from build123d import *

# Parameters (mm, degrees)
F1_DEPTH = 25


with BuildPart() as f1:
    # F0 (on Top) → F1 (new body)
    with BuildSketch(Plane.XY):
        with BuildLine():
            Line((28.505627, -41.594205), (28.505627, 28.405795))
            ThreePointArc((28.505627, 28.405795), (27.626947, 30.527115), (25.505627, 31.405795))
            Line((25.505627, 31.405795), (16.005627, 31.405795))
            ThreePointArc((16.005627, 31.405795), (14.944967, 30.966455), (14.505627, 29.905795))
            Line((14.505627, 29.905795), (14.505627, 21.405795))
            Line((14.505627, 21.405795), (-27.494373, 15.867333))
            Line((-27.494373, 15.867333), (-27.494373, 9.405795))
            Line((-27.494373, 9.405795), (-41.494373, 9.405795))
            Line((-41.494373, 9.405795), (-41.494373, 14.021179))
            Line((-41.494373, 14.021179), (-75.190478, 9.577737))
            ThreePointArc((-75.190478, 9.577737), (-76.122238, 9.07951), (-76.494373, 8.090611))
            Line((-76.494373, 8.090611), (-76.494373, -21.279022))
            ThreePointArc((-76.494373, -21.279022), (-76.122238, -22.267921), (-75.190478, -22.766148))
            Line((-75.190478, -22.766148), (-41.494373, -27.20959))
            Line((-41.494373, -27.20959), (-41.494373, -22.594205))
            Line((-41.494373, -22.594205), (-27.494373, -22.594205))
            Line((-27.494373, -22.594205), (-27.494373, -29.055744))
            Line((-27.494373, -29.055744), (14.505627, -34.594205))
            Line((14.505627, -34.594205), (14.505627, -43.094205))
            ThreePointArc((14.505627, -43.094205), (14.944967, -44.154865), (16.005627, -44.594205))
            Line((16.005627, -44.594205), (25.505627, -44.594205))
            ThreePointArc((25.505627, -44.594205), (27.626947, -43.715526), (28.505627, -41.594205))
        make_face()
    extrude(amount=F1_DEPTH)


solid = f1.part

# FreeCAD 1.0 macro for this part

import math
import FreeCAD as App
import Part
import Sketcher
Q = App.Units.Quantity

doc = App.newDocument("Part")
body = doc.addObject("PartDesign::Body", "Body")

sketch1 = doc.addObject("Sketcher::SketchObject", "Sketch")
body.addObject(sketch1)
sketch1.AttachmentSupport = (doc.XY_Plane, [""])
sketch1.MapMode = "FlatFace"
sketch1.addGeometry(Part.LineSegment(App.Vector(28.5, -41.6, 0), App.Vector(28.5, 28.4, 0)), False)
sketch1.addGeometry(Part.ArcOfCircle(Part.Circle(App.Vector(25.5, 28.4, 0), App.Vector(0, 0, 1), 3), math.radians(0), math.radians(90)), False)
sketch1.addGeometry(Part.LineSegment(App.Vector(25.5, 31.4, 0), App.Vector(16, 31.4, 0)), False)
sketch1.addGeometry(Part.ArcOfCircle(Part.Circle(App.Vector(16, 29.9, 0), App.Vector(0, 0, 1), 1.5), math.radians(90), math.radians(180)), False)
sketch1.addGeometry(Part.LineSegment(App.Vector(14.5, 29.9, 0), App.Vector(14.5, 21.4, 0)), False)
sketch1.addGeometry(Part.LineSegment(App.Vector(14.5, 21.4, 0), App.Vector(-27.5, 15.9, 0)), False)
sketch1.addGeometry(Part.LineSegment(App.Vector(-27.5, 15.9, 0), App.Vector(-27.5, 9.4, 0)), False)
sketch1.addGeometry(Part.LineSegment(App.Vector(-27.5, 9.4, 0), App.Vector(-41.5, 9.4, 0)), False)
sketch1.addGeometry(Part.LineSegment(App.Vector(-41.5, 9.4, 0), App.Vector(-41.5, 14, 0)), False)
sketch1.addGeometry(Part.LineSegment(App.Vector(-41.5, 14, 0), App.Vector(-75.2, 9.6, 0)), False)
sketch1.addGeometry(Part.ArcOfCircle(Part.Circle(App.Vector(-75, 8.1, 0), App.Vector(0, 0, 1), 1.5), math.radians(98), math.radians(180)), False)
sketch1.addGeometry(Part.LineSegment(App.Vector(-76.5, 8.1, 0), App.Vector(-76.5, -21.3, 0)), False)
sketch1.addGeometry(Part.ArcOfCircle(Part.Circle(App.Vector(-75, -21.3, 0), App.Vector(0, 0, 1), 1.5), math.radians(180), math.radians(262)), False)
sketch1.addGeometry(Part.LineSegment(App.Vector(-75.2, -22.8, 0), App.Vector(-41.5, -27.2, 0)), False)
sketch1.addGeometry(Part.LineSegment(App.Vector(-41.5, -27.2, 0), App.Vector(-41.5, -22.6, 0)), False)
sketch1.addGeometry(Part.LineSegment(App.Vector(-41.5, -22.6, 0), App.Vector(-27.5, -22.6, 0)), False)
sketch1.addGeometry(Part.LineSegment(App.Vector(-27.5, -22.6, 0), App.Vector(-27.5, -29.1, 0)), False)
sketch1.addGeometry(Part.LineSegment(App.Vector(-27.5, -29.1, 0), App.Vector(14.5, -34.6, 0)), False)
sketch1.addGeometry(Part.LineSegment(App.Vector(14.5, -34.6, 0), App.Vector(14.5, -43.1, 0)), False)
sketch1.addGeometry(Part.ArcOfCircle(Part.Circle(App.Vector(16, -43.1, 0), App.Vector(0, 0, 1), 1.5), math.radians(-180), math.radians(-90)), False)
sketch1.addGeometry(Part.LineSegment(App.Vector(16, -44.6, 0), App.Vector(25.5, -44.6, 0)), False)
sketch1.addGeometry(Part.ArcOfCircle(Part.Circle(App.Vector(25.5, -41.6, 0), App.Vector(0, 0, 1), 3), math.radians(-90), math.radians(0)), False)
sketch1.addConstraint(Sketcher.Constraint("Tangent", 0, 2, 1, 1))
sketch1.addConstraint(Sketcher.Constraint("Tangent", 1, 2, 2, 1))
sketch1.addConstraint(Sketcher.Constraint("Tangent", 2, 2, 3, 1))
sketch1.addConstraint(Sketcher.Constraint("Tangent", 3, 2, 4, 1))
sketch1.addConstraint(Sketcher.Constraint("Coincident", 4, 2, 5, 1))
sketch1.addConstraint(Sketcher.Constraint("Coincident", 5, 2, 6, 1))
sketch1.addConstraint(Sketcher.Constraint("Coincident", 6, 2, 7, 1))
sketch1.addConstraint(Sketcher.Constraint("Coincident", 7, 2, 8, 1))
sketch1.addConstraint(Sketcher.Constraint("Coincident", 8, 2, 9, 1))
sketch1.addConstraint(Sketcher.Constraint("Tangent", 9, 2, 10, 1))
sketch1.addConstraint(Sketcher.Constraint("Tangent", 10, 2, 11, 1))
sketch1.addConstraint(Sketcher.Constraint("Tangent", 11, 2, 12, 1))
sketch1.addConstraint(Sketcher.Constraint("Tangent", 12, 2, 13, 1))
sketch1.addConstraint(Sketcher.Constraint("Coincident", 13, 2, 14, 1))
sketch1.addConstraint(Sketcher.Constraint("Coincident", 14, 2, 15, 1))
sketch1.addConstraint(Sketcher.Constraint("Coincident", 15, 2, 16, 1))
sketch1.addConstraint(Sketcher.Constraint("Coincident", 16, 2, 17, 1))
sketch1.addConstraint(Sketcher.Constraint("Coincident", 17, 2, 18, 1))
sketch1.addConstraint(Sketcher.Constraint("Tangent", 18, 2, 19, 1))
sketch1.addConstraint(Sketcher.Constraint("Tangent", 19, 2, 20, 1))
sketch1.addConstraint(Sketcher.Constraint("Tangent", 20, 2, 21, 1))
sketch1.addConstraint(Sketcher.Constraint("Tangent", 21, 2, 0, 1))
sketch1.addConstraint(Sketcher.Constraint("Vertical", 0))
sketch1.addConstraint(Sketcher.Constraint("Horizontal", 2))
sketch1.addConstraint(Sketcher.Constraint("Vertical", 4))
sketch1.addConstraint(Sketcher.Constraint("Vertical", 6))
sketch1.addConstraint(Sketcher.Constraint("Horizontal", 7))
sketch1.addConstraint(Sketcher.Constraint("Vertical", 8))
sketch1.addConstraint(Sketcher.Constraint("Vertical", 11))
sketch1.addConstraint(Sketcher.Constraint("Vertical", 14))
sketch1.addConstraint(Sketcher.Constraint("Horizontal", 15))
sketch1.addConstraint(Sketcher.Constraint("Vertical", 16))
sketch1.addConstraint(Sketcher.Constraint("Vertical", 18))
sketch1.addConstraint(Sketcher.Constraint("Horizontal", 20))
sketch1.addConstraint(Sketcher.Constraint("Equal", 3, 10))
sketch1.addConstraint(Sketcher.Constraint("Equal", 10, 12))
sketch1.addConstraint(Sketcher.Constraint("Equal", 12, 19))
sketch1.addConstraint(Sketcher.Constraint("Equal", 1, 21))
sketch1.addConstraint(Sketcher.Constraint("Parallel", 5, 9))
sketch1.addConstraint(Sketcher.Constraint("Parallel", 13, 17))
sketch1.addConstraint(Sketcher.Constraint("Vertical", 3, 3, 19, 3))
sketch1.addConstraint(Sketcher.Constraint("Vertical", 9, 2, 12, 2))
sketch1.addConstraint(Sketcher.Constraint("Vertical", 8, 2, 13, 2))
sketch1.addConstraint(Sketcher.Constraint("Vertical", 6, 2, 15, 2))
sketch1.addConstraint(Sketcher.Constraint("Equal", 8, 14))
sketch1.addConstraint(Sketcher.Constraint("Equal", 6, 16))
sketch1.addConstraint(Sketcher.Constraint("Equal", 4, 18))
sketch1.addConstraint(Sketcher.Constraint("Radius", 1, Q("3.000001 mm")))
sketch1.addConstraint(Sketcher.Constraint("Radius", 3, Q("1.500001 mm")))
sketch1.addConstraint(Sketcher.Constraint("DistanceX", 7, 2, 7, 1, Q("14 mm")))
sketch1.addConstraint(Sketcher.Constraint("DistanceY", 0, 1, 0, 2, Q("70 mm")))
sketch1.addConstraint(Sketcher.Constraint("DistanceX", 2, 2, 2, 1, Q("9.5 mm")))
sketch1.addConstraint(Sketcher.Constraint("DistanceY", 4, 2, 4, 1, Q("8.5 mm")))
sketch1.addConstraint(Sketcher.Constraint("DistanceX", 10, 3, 3, 3, Q("91.000001 mm")))
sketch1.addConstraint(Sketcher.Constraint("DistanceX", 5, 2, 4, 2, Q("42 mm")))
sketch1.addConstraint(Sketcher.Constraint("DistanceY", 6, 2, 4, 2, Q("12 mm")))
sketch1.addConstraint(Sketcher.Constraint("Distance", 5, Q("42.363599 mm")))
sketch1.addConstraint(Sketcher.Constraint("DistanceY", 12, 3, 8, 2, Q("35.300201 mm")))
sketch1.addConstraint(Sketcher.Constraint("DistanceY", -1, 1, 10, 3, Q("8.090611 mm")))
sketch1.addConstraint(Sketcher.Constraint("DistanceX", 9, 2, -1, 1, Q("75.190478 mm")))
pad1 = doc.addObject("PartDesign::Pad", "Pad")
body.addObject(pad1)
pad1.Profile = sketch1
pad1.Length = 25

doc.recompute()
